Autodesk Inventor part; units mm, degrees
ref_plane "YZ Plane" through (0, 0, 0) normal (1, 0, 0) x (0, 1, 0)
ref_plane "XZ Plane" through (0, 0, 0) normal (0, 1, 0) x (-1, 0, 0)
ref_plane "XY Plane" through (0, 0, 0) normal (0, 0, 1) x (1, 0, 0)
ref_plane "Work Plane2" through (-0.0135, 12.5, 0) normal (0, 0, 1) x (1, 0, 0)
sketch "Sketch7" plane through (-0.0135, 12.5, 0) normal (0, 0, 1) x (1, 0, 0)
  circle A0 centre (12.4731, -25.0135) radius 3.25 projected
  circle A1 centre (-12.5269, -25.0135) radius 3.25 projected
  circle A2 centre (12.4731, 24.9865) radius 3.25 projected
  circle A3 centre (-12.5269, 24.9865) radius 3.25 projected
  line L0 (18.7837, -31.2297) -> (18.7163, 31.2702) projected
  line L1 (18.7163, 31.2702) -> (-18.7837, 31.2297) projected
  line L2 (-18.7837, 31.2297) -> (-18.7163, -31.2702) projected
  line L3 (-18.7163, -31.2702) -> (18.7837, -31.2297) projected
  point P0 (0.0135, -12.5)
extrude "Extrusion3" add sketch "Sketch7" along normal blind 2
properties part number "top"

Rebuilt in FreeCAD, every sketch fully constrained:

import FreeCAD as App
import Part
import Sketcher
Q = App.Units.Quantity


def add_polygon(sketch, points):
    """Adds a closed chain of lines whose ends are joined by coincident constraints."""
    first, n = sketch.GeometryCount, len(points)
    for a, b in zip(points, points[1:] + points[:1]):
        sketch.addGeometry(Part.LineSegment(App.Vector(*a, 0), App.Vector(*b, 0)), False)
    for i in range(n):
        sketch.addConstraint(Sketcher.Constraint("Coincident", first + i, 2, first + (i + 1) % n, 1))

doc = App.newDocument("Part")
body = doc.addObject("PartDesign::Body", "Body")

sketch1 = doc.addObject("Sketcher::SketchObject", "Sketch")
body.addObject(sketch1)
sketch1.AttachmentSupport = (doc.XY_Plane, [""])
sketch1.MapMode = "FlatFace"
add_polygon(sketch1, [(-18.7298, -18.7702), (18.7702, -18.7297), (18.7028, 43.7702), (-18.7972, 43.7297)])
sketch1.addGeometry(Part.Circle(App.Vector(-12.5404, -12.5135, 0), App.Vector(0, 0, 1), 3.25), False)
sketch1.addGeometry(Part.Circle(App.Vector(12.4596, -12.5135, 0), App.Vector(0, 0, 1), 3.25), False)
sketch1.addGeometry(Part.Circle(App.Vector(-12.5404, 37.4865, 0), App.Vector(0, 0, 1), 3.25), False)
sketch1.addGeometry(Part.Circle(App.Vector(12.4596, 37.4865, 0), App.Vector(0, 0, 1), 3.25), False)
sketch1.addConstraint([
    Sketcher.Constraint("Equal", 4, 5),
    Sketcher.Constraint("Equal", 5, 6),
    Sketcher.Constraint("Equal", 6, 7),
    Sketcher.Constraint("Perpendicular", 0, 1),
    Sketcher.Constraint("Perpendicular", 1, 2),
    Sketcher.Constraint("Perpendicular", 2, 3),
    Sketcher.Constraint("Horizontal", 4, 3, 5, 3),
    Sketcher.Constraint("Horizontal", 6, 3, 7, 3),
    Sketcher.Constraint("Vertical", 4, 3, 6, 3),
    Sketcher.Constraint("Vertical", 5, 3, 7, 3),
    Sketcher.Constraint("Diameter", 4, Q("6.5 mm")),
    Sketcher.Constraint("DistanceX", 4, 3, 5, 3, Q("25 mm")),
    Sketcher.Constraint("DistanceY", 4, 3, 6, 3, Q("50 mm")),
    Sketcher.Constraint("Distance", 0, Q("37.5 mm")),
    Sketcher.Constraint("Distance", 1, Q("62.5 mm")),
    Sketcher.Constraint("DistanceX", 4, 3, -1, 1, Q("12.5404 mm")),
    Sketcher.Constraint("DistanceY", 4, 3, -1, 1, Q("12.5135 mm")),
    Sketcher.Constraint("DistanceX", -1, 1, 0, 2, Q("18.7702 mm")),
    Sketcher.Constraint("DistanceY", 0, 2, -1, 1, Q("18.7297 mm")),
    Sketcher.Constraint("DistanceX", -1, 1, 1, 2, Q("18.7028 mm")),
])
pad1 = doc.addObject("PartDesign::Pad", "Pad")
body.addObject(pad1)
pad1.Profile = sketch1
pad1.Length = 2

doc.recompute()
